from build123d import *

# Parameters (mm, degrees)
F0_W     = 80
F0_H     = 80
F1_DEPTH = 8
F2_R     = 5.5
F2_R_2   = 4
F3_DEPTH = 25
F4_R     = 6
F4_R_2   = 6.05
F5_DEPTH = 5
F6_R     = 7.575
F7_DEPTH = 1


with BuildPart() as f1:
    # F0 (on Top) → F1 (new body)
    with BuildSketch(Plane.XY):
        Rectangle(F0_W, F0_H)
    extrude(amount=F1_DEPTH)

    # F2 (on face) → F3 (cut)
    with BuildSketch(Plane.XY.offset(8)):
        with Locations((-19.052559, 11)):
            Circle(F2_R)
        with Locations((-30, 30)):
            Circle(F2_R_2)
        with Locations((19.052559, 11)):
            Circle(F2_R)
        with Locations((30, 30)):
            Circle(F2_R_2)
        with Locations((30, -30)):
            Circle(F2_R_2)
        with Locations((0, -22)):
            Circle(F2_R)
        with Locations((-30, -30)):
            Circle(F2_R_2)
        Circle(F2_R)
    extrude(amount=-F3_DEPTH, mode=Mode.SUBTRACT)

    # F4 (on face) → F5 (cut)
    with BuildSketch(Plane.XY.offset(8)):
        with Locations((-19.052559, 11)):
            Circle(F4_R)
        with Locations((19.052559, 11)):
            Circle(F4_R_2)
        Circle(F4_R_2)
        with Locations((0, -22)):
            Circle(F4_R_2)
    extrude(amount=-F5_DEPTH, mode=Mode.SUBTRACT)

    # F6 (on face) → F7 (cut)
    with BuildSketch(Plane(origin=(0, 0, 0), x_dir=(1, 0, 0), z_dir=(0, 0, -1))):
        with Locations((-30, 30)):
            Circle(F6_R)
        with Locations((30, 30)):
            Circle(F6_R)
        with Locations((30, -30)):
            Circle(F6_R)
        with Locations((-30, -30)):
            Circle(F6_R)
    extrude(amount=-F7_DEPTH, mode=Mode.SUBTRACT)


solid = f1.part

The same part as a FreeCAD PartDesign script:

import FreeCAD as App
import Part
import Sketcher

V = App.Vector

doc = App.newDocument("Part")
body = doc.addObject("PartDesign::Body", "Body")

sketch1 = body.newObject("Sketcher::SketchObject", "Sketch")
sketch1.AttachmentSupport = (doc.getObject("XY_Plane"), [""])
sketch1.MapMode = "FlatFace"
sketch1.addGeometry([
    Part.LineSegment(V(-40, 40, 0), V(-40, -40, 0)),
    Part.LineSegment(V(-40, -40, 0), V(40, -40, 0)),
    Part.LineSegment(V(40, -40, 0), V(40, 40, 0)),
    Part.LineSegment(V(40, 40, 0), V(-40, 40, 0)),
], False)
sketch1.addConstraint([
    Sketcher.Constraint("Coincident", 0, 2, 1, 1),
    Sketcher.Constraint("Coincident", 1, 2, 2, 1),
    Sketcher.Constraint("Coincident", 2, 2, 3, 1),
    Sketcher.Constraint("Coincident", 3, 2, 0, 1),
    Sketcher.Constraint("Vertical", 0),
    Sketcher.Constraint("Horizontal", 1),
    Sketcher.Constraint("Vertical", 2),
    Sketcher.Constraint("Horizontal", 3),
    Sketcher.Constraint("Symmetric", 0, 2, 2, 2, -1, 1),
    Sketcher.Constraint("Equal", 3, 0),
    Sketcher.Constraint("DistanceX", 1, 1, 1, 2, 80.0),
])
pad1 = body.newObject("PartDesign::Pad", "Pad")
pad1.Profile = sketch1
pad1.Length = 8

sketch2 = body.newObject("Sketcher::SketchObject", "Sketch001")
sketch2.AttachmentSupport = (doc.getObject("XY_Plane"), [""])
sketch2.MapMode = "FlatFace"
sketch2.AttachmentOffset = App.Placement(V(0, 0, 8), App.Rotation())
sketch2.addGeometry([
    Part.Circle(V(-19.1, 11, 0), V(0, 0, 1), 5.5),
    Part.Circle(V(-30, 30, 0), V(0, 0, 1), 4),
    Part.Circle(V(19.1, 11, 0), V(0, 0, 1), 5.5),
    Part.Circle(V(30, 30, 0), V(0, 0, 1), 4),
    Part.Circle(V(30, -30, 0), V(0, 0, 1), 4),
    Part.Circle(V(0, -22, 0), V(0, 0, 1), 5.5),
    Part.Circle(V(-30, -30, 0), V(0, 0, 1), 4),
    Part.Circle(V(0, 0, 0), V(0, 0, 1), 5.5),
], False)
sketch2.addConstraint([
    Sketcher.Constraint("Coincident", 7, 3, -1, 1),
    Sketcher.Constraint("Equal", 0, 2),
    Sketcher.Constraint("Equal", 1, 3),
    Sketcher.Constraint("Equal", 3, 4),
    Sketcher.Constraint("Equal", 2, 5),
    Sketcher.Constraint("Equal", 4, 6),
    Sketcher.Constraint("Equal", 5, 7),
    Sketcher.Constraint("Symmetric", 1, 3, 4, 3, -1, 1),
    Sketcher.Constraint("Symmetric", 3, 3, 6, 3, -1, 1),
    Sketcher.Constraint("Symmetric", 0, 3, 2, 3, -2),
    Sketcher.Constraint("Symmetric", 1, 3, 3, 3, -2),
    Sketcher.Constraint("PointOnObject", 5, 3, -2),
    Sketcher.Constraint("Diameter", 0, 11.0),
    Sketcher.Constraint("Diameter", 1, 8.0),
    Sketcher.Constraint("DistanceY", -1, 1, 0, 3, 11.0),
    Sketcher.Constraint("DistanceX", 1, 3, -1, 1, 30.0),
    Sketcher.Constraint("DistanceY", -1, 1, 1, 3, 30.0),
    Sketcher.Constraint("DistanceY", 5, 3, -1, 1, 22.0),
    Sketcher.Constraint("DistanceX", 0, 3, -1, 1, 19.052559),
])
pocket1 = body.newObject("PartDesign::Pocket", "Pocket")
pocket1.Profile = sketch2
pocket1.Length = 25

sketch3 = body.newObject("Sketcher::SketchObject", "Sketch002")
sketch3.AttachmentSupport = (doc.getObject("XY_Plane"), [""])
sketch3.MapMode = "FlatFace"
sketch3.AttachmentOffset = App.Placement(V(0, 0, 8), App.Rotation())
sketch3.addGeometry([
    Part.Circle(V(-19, 11, 0), V(0, 0, 1), 6),
    Part.Circle(V(19, 11, 0), V(0, 0, 1), 6),
    Part.Circle(V(0, 0, 0), V(0, 0, 1), 6),
    Part.Circle(V(0, -22, 0), V(0, 0, 1), 6),
], False)
sketch3.addConstraint([
    Sketcher.Constraint("Coincident", 2, 3, -1, 1),
    Sketcher.Constraint("Equal", 1, 2),
    Sketcher.Constraint("Equal", 2, 3),
    Sketcher.Constraint("Symmetric", 0, 3, 1, 3, -2),
    Sketcher.Constraint("PointOnObject", 3, 3, -2),
    Sketcher.Constraint("Diameter", 0, 12.0),
    Sketcher.Constraint("Diameter", 1, 12.1),
    Sketcher.Constraint("DistanceY", -1, 1, 0, 3, 11.0),
    Sketcher.Constraint("DistanceY", 3, 3, -1, 1, 22.0),
    Sketcher.Constraint("DistanceX", 0, 3, -1, 1, 19.052559),
])
pocket2 = body.newObject("PartDesign::Pocket", "Pocket001")
pocket2.Profile = sketch3
pocket2.Length = 5

sketch4 = body.newObject("Sketcher::SketchObject", "Sketch003")
sketch4.AttachmentSupport = (doc.getObject("XY_Plane"), [""])
sketch4.MapMode = "FlatFace"
sketch4.addGeometry([
    Part.Circle(V(-30, -30, 0), V(0, 0, 1), 8),
    Part.Circle(V(30, -30, 0), V(0, 0, 1), 8),
    Part.Circle(V(30, 30, 0), V(0, 0, 1), 8),
    Part.Circle(V(-30, 30, 0), V(0, 0, 1), 8),
], False)
sketch4.addConstraint([
    Sketcher.Constraint("Equal", 0, 1),
    Sketcher.Constraint("Equal", 1, 2),
    Sketcher.Constraint("Equal", 2, 3),
    Sketcher.Constraint("Symmetric", 0, 3, 2, 3, -1, 1),
    Sketcher.Constraint("Symmetric", 1, 3, 3, 3, -1, 1),
    Sketcher.Constraint("Symmetric", 0, 3, 1, 3, -2),
    Sketcher.Constraint("Diameter", 0, 15.15),
    Sketcher.Constraint("DistanceX", 0, 3, -1, 1, 30.0),
    Sketcher.Constraint("DistanceY", 0, 3, -1, 1, 30.0),
])
pocket3 = body.newObject("PartDesign::Pocket", "Pocket002")
pocket3.Profile = sketch4
pocket3.Length = 1
pocket3.Reversed = True

doc.recompute()
